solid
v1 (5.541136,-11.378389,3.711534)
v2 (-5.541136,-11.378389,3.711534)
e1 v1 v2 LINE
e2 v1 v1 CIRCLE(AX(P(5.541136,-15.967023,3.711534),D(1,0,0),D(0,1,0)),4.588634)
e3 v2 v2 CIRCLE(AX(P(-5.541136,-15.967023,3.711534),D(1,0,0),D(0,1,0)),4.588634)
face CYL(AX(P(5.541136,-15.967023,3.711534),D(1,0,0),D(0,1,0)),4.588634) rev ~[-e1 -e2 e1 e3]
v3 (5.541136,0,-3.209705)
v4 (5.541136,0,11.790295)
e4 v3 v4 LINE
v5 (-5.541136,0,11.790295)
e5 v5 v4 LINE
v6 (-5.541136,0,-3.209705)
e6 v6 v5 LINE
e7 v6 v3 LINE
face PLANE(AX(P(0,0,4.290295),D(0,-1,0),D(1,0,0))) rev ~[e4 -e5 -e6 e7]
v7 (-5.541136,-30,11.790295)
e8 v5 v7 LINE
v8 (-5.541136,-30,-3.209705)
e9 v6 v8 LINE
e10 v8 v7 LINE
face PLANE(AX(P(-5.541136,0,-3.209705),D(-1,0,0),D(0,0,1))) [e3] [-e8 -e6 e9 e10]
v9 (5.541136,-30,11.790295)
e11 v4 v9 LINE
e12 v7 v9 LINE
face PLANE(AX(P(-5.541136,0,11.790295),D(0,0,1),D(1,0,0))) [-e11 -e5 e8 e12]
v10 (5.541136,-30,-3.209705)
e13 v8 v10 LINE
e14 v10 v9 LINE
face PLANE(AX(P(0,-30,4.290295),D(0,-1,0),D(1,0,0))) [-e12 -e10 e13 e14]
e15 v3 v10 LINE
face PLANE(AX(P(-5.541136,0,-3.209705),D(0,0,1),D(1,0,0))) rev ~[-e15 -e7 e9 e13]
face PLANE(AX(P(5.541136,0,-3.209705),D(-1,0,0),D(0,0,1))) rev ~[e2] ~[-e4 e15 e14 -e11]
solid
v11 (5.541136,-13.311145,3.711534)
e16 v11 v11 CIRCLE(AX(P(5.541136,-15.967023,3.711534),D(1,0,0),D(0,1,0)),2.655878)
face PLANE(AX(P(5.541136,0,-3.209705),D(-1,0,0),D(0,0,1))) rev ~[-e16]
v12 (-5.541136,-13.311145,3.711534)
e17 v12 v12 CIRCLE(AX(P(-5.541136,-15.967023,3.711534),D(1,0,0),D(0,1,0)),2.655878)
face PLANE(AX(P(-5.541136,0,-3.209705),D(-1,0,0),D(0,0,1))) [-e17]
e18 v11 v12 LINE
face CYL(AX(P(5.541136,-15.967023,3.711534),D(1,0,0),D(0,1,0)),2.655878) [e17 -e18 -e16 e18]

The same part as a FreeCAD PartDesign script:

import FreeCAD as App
import Part
import Sketcher
from FreeCAD import Vector
Q = App.Units.Quantity


def add_polygon(sketch, points):
    """Adds a closed chain of lines whose ends are joined by coincident constraints."""
    first, n = sketch.GeometryCount, len(points)
    for a, b in zip(points, points[1:] + points[:1]):
        sketch.addGeometry(Part.LineSegment(App.Vector(*a, 0), App.Vector(*b, 0)), False)
    for i in range(n):
        sketch.addConstraint(Sketcher.Constraint("Coincident", first + i, 2, first + (i + 1) % n, 1))

doc = App.newDocument("Part")
body = doc.addObject("PartDesign::Body", "Body")
body.AllowCompound = True

# Sketch on XZ plane
sketch1 = body.newObject("Sketcher::SketchObject", "Sketch")
sketch1.AttachmentSupport = (doc.getObject("XZ_Plane"), [""])
sketch1.MapMode = "FlatFace"
add_polygon(sketch1, [(-6, 12), (-6, -3), (6, -3), (6, 12)])  # lines 0-3
sketch1.addConstraint(Sketcher.Constraint("Vertical", 0))
sketch1.addConstraint(Sketcher.Constraint("Horizontal", 1))
sketch1.addConstraint(Sketcher.Constraint("Vertical", 2))
sketch1.addConstraint(Sketcher.Constraint("Horizontal", 3))
sketch1.addConstraint(Sketcher.Constraint("DistanceY", 0, 2, 0, 1, Q("15 mm")))
sketch1.addConstraint(Sketcher.Constraint("DistanceX", 1, 1, 1, 2, Q("11.082272 mm")))
sketch1.addConstraint(Sketcher.Constraint("DistanceX", 0, 2, -1, 1, Q("5.541136 mm")))
sketch1.addConstraint(Sketcher.Constraint("DistanceY", 0, 2, -1, 1, Q("3.209705 mm")))
pad1 = body.newObject("PartDesign::Pad", "Pad")
pad1.Profile = sketch1
pad1.Length = 30

# Sketch on YZ plane
sketch2 = body.newObject("Sketcher::SketchObject", "Sketch001")
sketch2.AttachmentSupport = (doc.getObject("YZ_Plane"), [""])
sketch2.MapMode = "FlatFace"
sketch2.AttachmentOffset = App.Placement(Vector(0, 0, 5.541136), App.Rotation())
sketch2.addGeometry(Part.Circle(Vector(-16, 3.7, 0), Vector(0, 0, 1), 4.6), False)
sketch2.addGeometry(Part.Circle(Vector(-16, 3.7, 0), Vector(0, 0, 1), 2.7), False)
sketch2.addConstraint(Sketcher.Constraint("Coincident", 1, 3, 0, 3))
sketch2.addConstraint(Sketcher.Constraint("Diameter", 0, Q("9.177268 mm")))
sketch2.addConstraint(Sketcher.Constraint("Diameter", 1, Q("5.311756 mm")))
sketch2.addConstraint(Sketcher.Constraint("DistanceX", 0, 3, -1, 1, Q("15.967023 mm")))
sketch2.addConstraint(Sketcher.Constraint("DistanceY", -1, 1, 0, 3, Q("3.711534 mm")))
pocket1 = body.newObject("PartDesign::Pocket", "Pocket")
pocket1.Profile = sketch2
pocket1.Type = "ThroughAll"

doc.recompute()
